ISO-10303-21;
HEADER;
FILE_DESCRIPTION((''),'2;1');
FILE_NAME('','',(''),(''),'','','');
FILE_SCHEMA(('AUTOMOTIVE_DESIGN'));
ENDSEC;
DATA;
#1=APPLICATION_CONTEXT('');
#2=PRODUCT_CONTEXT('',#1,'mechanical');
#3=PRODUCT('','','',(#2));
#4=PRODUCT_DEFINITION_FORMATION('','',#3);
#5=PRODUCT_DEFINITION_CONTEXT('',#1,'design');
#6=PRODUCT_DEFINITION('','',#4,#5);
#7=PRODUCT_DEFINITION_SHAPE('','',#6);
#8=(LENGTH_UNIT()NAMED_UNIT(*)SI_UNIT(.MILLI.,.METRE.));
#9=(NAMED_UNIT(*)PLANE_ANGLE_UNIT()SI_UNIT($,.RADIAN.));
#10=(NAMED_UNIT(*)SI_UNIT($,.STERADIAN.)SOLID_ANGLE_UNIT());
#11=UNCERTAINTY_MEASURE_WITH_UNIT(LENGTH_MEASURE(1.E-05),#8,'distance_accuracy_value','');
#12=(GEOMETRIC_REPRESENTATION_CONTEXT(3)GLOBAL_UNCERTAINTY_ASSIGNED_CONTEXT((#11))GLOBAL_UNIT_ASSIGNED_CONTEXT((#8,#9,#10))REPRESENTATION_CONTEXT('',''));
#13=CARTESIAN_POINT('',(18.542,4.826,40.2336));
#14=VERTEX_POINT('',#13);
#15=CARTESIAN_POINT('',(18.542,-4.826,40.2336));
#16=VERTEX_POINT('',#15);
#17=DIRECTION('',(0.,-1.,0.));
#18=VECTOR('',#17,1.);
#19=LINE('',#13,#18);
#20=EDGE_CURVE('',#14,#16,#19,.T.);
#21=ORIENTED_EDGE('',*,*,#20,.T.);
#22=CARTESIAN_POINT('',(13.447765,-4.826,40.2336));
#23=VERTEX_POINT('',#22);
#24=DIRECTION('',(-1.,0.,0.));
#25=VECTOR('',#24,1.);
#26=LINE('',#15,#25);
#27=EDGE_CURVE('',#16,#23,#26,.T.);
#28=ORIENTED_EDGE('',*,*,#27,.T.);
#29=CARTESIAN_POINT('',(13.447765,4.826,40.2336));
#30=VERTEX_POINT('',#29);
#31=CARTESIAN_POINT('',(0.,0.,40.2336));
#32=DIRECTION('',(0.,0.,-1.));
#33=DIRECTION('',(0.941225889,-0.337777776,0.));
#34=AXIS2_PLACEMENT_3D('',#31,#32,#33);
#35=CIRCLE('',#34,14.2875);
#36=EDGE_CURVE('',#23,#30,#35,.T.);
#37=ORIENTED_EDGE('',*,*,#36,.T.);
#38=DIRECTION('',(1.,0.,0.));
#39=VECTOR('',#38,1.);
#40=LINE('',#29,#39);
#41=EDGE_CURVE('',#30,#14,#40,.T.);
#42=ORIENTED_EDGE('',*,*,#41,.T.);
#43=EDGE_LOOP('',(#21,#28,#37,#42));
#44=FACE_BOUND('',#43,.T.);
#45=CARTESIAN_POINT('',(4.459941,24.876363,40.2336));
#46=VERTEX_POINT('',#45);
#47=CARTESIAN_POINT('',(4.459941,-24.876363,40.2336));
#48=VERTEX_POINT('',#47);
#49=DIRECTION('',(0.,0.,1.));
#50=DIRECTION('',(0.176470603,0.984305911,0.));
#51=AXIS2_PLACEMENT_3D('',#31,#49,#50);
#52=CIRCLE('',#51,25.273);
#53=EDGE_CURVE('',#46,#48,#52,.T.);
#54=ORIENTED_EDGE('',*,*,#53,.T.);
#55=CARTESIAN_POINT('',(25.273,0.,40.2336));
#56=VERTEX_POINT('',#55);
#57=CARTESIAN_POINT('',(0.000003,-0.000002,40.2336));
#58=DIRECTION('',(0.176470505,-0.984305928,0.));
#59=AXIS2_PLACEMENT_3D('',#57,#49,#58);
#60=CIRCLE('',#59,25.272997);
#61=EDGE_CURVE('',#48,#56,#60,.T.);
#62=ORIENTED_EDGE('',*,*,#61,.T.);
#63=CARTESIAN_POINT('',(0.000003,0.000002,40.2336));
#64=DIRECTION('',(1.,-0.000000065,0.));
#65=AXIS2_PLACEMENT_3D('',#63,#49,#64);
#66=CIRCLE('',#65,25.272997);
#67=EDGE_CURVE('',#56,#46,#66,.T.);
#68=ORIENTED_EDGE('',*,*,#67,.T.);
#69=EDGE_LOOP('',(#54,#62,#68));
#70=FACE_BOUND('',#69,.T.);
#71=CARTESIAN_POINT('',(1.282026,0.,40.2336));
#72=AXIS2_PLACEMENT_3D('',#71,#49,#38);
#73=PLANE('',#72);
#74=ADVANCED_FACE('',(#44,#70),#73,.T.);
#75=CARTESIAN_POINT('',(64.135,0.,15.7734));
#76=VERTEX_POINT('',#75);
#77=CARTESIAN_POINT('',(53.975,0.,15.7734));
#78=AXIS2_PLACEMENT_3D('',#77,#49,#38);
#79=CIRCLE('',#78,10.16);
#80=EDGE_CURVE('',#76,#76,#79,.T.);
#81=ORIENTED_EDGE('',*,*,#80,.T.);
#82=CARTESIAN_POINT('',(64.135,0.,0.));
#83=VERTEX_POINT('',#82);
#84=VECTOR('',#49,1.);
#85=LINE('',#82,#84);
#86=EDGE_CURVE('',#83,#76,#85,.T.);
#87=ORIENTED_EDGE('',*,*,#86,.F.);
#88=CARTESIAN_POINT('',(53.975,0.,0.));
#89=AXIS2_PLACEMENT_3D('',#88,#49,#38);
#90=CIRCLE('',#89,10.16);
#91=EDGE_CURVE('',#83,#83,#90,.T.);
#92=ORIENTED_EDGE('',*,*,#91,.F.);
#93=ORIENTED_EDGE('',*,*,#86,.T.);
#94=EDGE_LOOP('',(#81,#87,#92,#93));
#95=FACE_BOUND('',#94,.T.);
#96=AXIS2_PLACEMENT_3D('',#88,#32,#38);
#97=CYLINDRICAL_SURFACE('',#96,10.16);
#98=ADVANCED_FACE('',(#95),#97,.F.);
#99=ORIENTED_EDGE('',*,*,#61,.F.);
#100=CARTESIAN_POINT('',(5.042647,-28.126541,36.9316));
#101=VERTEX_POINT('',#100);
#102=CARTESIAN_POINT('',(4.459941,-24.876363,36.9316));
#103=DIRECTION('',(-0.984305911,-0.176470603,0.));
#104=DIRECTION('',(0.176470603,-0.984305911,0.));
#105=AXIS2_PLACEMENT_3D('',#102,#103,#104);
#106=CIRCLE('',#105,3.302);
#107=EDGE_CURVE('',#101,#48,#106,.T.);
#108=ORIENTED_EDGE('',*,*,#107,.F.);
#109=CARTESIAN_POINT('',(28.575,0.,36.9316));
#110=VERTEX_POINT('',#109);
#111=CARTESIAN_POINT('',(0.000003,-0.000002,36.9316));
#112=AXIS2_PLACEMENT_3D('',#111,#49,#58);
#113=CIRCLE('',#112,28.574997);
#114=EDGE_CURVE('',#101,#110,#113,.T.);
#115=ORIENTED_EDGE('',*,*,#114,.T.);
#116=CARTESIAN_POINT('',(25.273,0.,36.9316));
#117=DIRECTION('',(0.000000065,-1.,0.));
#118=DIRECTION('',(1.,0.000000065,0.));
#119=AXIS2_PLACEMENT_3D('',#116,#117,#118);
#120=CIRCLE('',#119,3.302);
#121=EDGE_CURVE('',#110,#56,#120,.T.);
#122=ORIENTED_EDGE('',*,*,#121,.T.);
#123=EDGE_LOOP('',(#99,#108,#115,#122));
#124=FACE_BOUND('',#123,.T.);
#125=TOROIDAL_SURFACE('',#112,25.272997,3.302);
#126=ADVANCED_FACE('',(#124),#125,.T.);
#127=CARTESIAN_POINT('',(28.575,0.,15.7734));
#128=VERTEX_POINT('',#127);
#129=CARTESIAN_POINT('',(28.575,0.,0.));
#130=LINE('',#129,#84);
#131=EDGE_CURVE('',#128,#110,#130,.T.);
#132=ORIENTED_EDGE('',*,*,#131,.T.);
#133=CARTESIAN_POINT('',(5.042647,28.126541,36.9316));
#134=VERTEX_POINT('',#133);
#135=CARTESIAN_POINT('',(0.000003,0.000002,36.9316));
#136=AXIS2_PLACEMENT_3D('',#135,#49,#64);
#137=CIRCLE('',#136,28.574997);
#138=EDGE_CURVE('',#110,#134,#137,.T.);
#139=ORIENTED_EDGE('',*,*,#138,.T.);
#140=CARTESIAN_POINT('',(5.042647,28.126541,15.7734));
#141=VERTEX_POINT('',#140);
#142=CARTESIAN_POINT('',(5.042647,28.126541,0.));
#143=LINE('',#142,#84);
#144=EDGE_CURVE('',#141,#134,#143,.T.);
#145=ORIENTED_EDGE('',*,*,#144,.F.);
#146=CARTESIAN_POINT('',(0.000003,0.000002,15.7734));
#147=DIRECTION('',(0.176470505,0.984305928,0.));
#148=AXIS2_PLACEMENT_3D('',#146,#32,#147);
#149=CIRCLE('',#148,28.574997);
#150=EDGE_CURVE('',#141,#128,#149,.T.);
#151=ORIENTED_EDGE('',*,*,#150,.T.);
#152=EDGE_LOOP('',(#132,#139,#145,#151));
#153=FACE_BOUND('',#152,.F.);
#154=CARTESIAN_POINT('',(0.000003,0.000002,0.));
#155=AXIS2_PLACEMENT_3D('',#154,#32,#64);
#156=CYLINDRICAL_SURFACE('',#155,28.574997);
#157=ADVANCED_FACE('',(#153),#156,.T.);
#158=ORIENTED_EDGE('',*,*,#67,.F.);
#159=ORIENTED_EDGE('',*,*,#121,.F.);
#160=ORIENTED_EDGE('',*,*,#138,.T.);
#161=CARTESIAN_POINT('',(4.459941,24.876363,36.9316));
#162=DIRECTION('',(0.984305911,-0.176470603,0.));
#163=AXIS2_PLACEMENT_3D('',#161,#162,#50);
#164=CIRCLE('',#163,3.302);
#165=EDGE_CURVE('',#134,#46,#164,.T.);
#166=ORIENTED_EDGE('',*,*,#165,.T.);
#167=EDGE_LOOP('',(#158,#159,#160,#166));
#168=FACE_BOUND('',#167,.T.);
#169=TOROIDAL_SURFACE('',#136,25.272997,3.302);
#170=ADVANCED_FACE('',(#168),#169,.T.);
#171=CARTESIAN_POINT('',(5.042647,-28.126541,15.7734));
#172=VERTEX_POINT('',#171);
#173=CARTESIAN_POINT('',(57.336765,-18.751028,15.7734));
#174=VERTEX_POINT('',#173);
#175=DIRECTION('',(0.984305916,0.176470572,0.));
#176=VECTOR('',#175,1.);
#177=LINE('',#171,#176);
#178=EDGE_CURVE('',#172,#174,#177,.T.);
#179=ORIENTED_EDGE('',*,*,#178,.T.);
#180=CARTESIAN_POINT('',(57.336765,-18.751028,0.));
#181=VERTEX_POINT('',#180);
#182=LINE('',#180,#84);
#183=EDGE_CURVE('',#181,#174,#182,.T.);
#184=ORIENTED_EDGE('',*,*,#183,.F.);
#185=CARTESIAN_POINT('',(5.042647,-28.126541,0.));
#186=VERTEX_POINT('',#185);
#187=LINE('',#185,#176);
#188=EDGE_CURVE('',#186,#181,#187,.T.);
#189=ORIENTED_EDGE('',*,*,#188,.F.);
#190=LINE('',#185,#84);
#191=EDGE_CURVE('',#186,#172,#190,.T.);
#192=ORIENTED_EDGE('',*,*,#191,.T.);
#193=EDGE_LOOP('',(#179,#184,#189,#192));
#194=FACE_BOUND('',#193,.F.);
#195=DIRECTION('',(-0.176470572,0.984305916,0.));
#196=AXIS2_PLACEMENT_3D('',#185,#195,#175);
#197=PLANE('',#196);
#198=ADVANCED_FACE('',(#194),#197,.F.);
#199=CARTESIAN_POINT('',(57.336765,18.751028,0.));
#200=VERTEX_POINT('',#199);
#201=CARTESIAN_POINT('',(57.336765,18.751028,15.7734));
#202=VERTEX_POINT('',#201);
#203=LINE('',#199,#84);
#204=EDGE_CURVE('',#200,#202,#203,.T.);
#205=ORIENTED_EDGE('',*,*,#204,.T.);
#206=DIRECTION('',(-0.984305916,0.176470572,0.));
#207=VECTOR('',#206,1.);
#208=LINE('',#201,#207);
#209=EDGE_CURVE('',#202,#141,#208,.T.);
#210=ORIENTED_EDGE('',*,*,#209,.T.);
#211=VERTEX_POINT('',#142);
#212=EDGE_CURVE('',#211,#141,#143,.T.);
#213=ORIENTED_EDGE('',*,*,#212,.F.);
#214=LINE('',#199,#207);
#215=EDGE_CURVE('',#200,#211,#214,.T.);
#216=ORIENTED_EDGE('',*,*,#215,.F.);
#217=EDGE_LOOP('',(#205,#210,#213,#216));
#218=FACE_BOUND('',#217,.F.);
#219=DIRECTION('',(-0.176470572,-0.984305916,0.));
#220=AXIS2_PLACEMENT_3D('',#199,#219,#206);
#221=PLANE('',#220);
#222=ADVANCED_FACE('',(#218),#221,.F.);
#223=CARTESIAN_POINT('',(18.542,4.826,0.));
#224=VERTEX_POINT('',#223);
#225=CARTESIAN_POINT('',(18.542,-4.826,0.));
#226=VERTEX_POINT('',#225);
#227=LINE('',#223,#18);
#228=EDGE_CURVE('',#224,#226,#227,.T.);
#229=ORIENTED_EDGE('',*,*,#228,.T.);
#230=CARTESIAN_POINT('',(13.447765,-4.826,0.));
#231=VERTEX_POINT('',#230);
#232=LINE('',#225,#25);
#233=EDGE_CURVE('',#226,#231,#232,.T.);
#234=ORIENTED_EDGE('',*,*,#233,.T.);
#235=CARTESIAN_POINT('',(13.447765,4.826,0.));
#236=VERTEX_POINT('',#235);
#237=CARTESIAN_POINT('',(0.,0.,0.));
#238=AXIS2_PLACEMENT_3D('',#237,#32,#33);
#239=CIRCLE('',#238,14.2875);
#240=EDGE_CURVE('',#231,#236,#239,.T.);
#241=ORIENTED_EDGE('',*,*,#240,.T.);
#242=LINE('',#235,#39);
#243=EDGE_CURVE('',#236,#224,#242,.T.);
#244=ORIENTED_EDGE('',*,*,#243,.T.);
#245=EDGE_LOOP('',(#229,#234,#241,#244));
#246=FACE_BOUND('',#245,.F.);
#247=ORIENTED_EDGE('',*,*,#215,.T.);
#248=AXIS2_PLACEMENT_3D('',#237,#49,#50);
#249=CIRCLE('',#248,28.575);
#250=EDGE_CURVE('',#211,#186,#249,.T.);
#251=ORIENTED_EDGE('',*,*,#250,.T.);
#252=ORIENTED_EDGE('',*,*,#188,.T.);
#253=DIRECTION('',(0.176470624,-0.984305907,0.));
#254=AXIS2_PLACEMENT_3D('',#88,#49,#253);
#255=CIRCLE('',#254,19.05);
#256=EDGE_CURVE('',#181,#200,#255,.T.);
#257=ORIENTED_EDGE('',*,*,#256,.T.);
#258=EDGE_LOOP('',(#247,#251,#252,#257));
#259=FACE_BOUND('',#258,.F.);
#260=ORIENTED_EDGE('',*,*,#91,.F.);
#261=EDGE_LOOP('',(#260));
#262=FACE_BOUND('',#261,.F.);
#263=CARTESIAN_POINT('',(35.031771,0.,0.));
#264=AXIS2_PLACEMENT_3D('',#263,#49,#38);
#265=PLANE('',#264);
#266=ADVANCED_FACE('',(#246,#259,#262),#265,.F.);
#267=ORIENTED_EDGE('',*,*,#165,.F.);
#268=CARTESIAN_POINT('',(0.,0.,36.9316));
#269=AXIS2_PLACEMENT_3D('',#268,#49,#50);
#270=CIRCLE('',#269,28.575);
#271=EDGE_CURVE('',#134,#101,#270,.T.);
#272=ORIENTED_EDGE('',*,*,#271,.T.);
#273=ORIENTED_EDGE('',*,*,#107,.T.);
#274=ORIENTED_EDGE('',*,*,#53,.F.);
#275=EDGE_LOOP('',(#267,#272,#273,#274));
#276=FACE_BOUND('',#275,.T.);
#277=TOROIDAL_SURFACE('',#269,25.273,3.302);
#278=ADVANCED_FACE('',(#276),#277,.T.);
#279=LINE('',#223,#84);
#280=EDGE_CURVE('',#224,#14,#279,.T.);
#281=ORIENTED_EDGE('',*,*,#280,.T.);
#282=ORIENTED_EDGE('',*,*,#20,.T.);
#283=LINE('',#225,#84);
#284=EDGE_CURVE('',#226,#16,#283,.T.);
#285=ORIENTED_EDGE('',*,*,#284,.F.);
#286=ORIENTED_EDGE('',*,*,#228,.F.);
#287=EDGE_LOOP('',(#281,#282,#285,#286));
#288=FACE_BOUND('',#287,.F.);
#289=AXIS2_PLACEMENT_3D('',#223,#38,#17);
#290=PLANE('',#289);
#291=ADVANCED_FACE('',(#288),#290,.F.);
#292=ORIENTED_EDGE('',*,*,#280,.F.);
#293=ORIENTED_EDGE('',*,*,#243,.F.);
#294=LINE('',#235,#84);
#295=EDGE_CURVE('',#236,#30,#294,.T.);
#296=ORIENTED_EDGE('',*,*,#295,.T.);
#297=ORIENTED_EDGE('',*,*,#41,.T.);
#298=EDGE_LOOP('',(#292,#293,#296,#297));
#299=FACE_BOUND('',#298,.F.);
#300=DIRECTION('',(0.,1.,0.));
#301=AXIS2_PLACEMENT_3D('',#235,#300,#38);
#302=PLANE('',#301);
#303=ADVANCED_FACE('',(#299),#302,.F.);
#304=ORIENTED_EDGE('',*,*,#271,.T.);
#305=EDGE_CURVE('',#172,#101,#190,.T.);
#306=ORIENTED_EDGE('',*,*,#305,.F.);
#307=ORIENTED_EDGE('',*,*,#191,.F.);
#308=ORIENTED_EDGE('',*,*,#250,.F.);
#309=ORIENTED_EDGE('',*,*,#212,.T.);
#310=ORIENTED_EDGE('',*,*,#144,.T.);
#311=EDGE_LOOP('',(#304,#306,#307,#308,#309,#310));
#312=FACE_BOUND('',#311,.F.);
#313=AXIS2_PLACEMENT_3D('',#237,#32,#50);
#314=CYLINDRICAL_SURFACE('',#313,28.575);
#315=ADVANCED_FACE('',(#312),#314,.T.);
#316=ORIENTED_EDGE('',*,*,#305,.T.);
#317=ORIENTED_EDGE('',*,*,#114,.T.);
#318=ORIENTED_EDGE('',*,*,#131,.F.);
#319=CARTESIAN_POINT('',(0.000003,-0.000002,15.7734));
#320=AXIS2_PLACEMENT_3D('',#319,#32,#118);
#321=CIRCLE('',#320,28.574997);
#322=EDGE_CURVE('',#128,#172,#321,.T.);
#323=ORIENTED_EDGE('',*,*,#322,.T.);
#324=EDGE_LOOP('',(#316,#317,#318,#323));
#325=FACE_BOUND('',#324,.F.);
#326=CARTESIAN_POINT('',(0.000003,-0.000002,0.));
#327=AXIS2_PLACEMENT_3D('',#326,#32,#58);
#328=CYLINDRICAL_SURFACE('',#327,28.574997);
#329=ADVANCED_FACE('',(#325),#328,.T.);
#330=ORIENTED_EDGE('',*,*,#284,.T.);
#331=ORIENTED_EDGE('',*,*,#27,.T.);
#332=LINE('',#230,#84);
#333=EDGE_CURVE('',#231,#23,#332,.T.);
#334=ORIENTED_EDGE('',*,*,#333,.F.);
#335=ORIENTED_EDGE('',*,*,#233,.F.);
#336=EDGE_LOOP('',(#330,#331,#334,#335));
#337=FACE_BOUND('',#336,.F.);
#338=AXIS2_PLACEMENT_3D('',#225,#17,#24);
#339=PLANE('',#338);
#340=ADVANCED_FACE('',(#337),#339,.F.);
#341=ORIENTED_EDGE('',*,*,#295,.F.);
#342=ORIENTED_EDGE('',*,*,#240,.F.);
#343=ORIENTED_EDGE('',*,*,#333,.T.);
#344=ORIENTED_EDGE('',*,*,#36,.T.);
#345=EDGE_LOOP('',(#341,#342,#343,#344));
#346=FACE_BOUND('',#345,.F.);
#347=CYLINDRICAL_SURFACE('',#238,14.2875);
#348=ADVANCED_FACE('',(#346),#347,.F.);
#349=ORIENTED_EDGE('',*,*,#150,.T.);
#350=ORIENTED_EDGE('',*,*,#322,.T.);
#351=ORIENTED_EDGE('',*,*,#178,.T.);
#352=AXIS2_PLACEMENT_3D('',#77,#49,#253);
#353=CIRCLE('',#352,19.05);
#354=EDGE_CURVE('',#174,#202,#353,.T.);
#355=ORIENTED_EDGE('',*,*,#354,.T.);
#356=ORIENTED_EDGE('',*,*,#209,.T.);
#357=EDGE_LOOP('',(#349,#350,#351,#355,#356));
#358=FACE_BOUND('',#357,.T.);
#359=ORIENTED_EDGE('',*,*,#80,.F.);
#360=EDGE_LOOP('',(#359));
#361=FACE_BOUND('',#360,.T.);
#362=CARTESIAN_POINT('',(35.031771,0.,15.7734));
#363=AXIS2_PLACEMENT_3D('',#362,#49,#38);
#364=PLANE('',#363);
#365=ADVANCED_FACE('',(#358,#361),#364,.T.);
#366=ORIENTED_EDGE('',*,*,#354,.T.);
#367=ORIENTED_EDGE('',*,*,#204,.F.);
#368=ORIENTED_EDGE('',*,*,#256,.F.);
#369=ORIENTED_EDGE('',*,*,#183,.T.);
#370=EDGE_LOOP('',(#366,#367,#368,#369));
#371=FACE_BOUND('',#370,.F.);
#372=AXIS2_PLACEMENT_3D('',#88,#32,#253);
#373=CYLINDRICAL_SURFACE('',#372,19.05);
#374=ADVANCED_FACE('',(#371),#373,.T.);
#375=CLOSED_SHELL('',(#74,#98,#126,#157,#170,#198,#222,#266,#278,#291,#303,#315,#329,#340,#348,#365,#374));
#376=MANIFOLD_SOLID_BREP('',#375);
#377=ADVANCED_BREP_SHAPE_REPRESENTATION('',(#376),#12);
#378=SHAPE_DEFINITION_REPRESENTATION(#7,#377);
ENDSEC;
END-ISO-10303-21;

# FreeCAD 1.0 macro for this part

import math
import FreeCAD as App
import Part
import Sketcher
Q = App.Units.Quantity


def edges_at(feature, points):
    """Names of the edges that pass closest to the given points."""
    edges = feature.Shape.Edges
    near = lambda p: min(range(len(edges)), key=lambda i: edges[i].distToShape(Part.Vertex(*p))[0])
    return sorted({f"Edge{near(p) + 1}" for p in points})

doc = App.newDocument("Part")
body = doc.addObject("PartDesign::Body", "Body")

sketch1 = doc.addObject("Sketcher::SketchObject", "Sketch")
body.addObject(sketch1)
sketch1.AttachmentSupport = (doc.XY_Plane, [""])
sketch1.MapMode = "FlatFace"
sketch1.addGeometry(Part.ArcOfCircle(Part.Circle(App.Vector(0, 0, 0), App.Vector(0, 0, 1), 29), math.radians(80), math.radians(280)), False)
sketch1.addGeometry(Part.ArcOfCircle(Part.Circle(App.Vector(0, 0, 0), App.Vector(0, 0, 1), 29), math.radians(-80), math.radians(0)), False)
sketch1.addGeometry(Part.ArcOfCircle(Part.Circle(App.Vector(0, 0, 0), App.Vector(0, 0, 1), 29), math.radians(0), math.radians(80)), False)
sketch1.addGeometry(Part.LineSegment(App.Vector(19, -5, 0), App.Vector(13, -5, 0)), False)
sketch1.addGeometry(Part.ArcOfCircle(Part.Circle(App.Vector(0, 0, 0), App.Vector(0, 0, 1), 14), math.radians(20), math.radians(340)), False)
sketch1.addGeometry(Part.LineSegment(App.Vector(13, 5, 0), App.Vector(19, 5, 0)), False)
sketch1.addGeometry(Part.LineSegment(App.Vector(19, 5, 0), App.Vector(19, -5, 0)), False)
sketch1.addConstraint(Sketcher.Constraint("Tangent", 0, 2, 1, 1))
sketch1.addConstraint(Sketcher.Constraint("Tangent", 1, 2, 2, 1))
sketch1.addConstraint(Sketcher.Constraint("Tangent", 2, 2, 0, 1))
sketch1.addConstraint(Sketcher.Constraint("Coincident", 3, 2, 4, 2))
sketch1.addConstraint(Sketcher.Constraint("Coincident", 4, 1, 5, 1))
sketch1.addConstraint(Sketcher.Constraint("Coincident", 5, 2, 6, 1))
sketch1.addConstraint(Sketcher.Constraint("Coincident", 6, 2, 3, 1))
sketch1.addConstraint(Sketcher.Constraint("Horizontal", 3))
sketch1.addConstraint(Sketcher.Constraint("Horizontal", 5))
sketch1.addConstraint(Sketcher.Constraint("Vertical", 6))
sketch1.addConstraint(Sketcher.Constraint("Coincident", 0, 3, -1, 1))
sketch1.addConstraint(Sketcher.Constraint("Coincident", 4, 3, -1, 1))
sketch1.addConstraint(Sketcher.Constraint("PointOnObject", 1, 2, -1))
sketch1.addConstraint(Sketcher.Constraint("Vertical", 0, 2, 2, 2))
sketch1.addConstraint(Sketcher.Constraint("Vertical", 3, 2, 4, 1))
sketch1.addConstraint(Sketcher.Constraint("Radius", 0, Q("1.125 in")))
sketch1.addConstraint(Sketcher.Constraint("Radius", 4, Q("0.5625 in")))
sketch1.addConstraint(Sketcher.Constraint("DistanceY", 6, 2, 6, 1, Q("0.38 in")))
sketch1.addConstraint(Sketcher.Constraint("DistanceX", -1, 1, 5, 2, Q("0.73 in")))
sketch1.addConstraint(Sketcher.Constraint("DistanceY", 0, 2, -1, 1, Q("28.126541 mm")))
pad1 = doc.addObject("PartDesign::Pad", "Pad")
body.addObject(pad1)
pad1.Profile = sketch1
pad1.Length = Q("1.584 in")

sketch2 = doc.addObject("Sketcher::SketchObject", "Sketch001")
body.addObject(sketch2)
sketch2.AttachmentSupport = (doc.XY_Plane, [""])
sketch2.MapMode = "FlatFace"
sketch2.addGeometry(Part.LineSegment(App.Vector(5, -28, 0), App.Vector(57, -19, 0)), False)
sketch2.addGeometry(Part.ArcOfCircle(Part.Circle(App.Vector(54, 0, 0), App.Vector(0, 0, 1), 19), math.radians(-80), math.radians(80)), False)
sketch2.addGeometry(Part.LineSegment(App.Vector(57, 19, 0), App.Vector(5, 28, 0)), False)
sketch2.addGeometry(Part.ArcOfCircle(Part.Circle(App.Vector(0, 0, 0), App.Vector(0, 0, 1), 29), math.radians(0), math.radians(80)), False)
sketch2.addGeometry(Part.ArcOfCircle(Part.Circle(App.Vector(0, 0, 0), App.Vector(0, 0, 1), 29), math.radians(-80), math.radians(0)), False)
sketch2.addGeometry(Part.Circle(App.Vector(54, 0, 0), App.Vector(0, 0, 1), 10), False)
sketch2.addConstraint(Sketcher.Constraint("Tangent", 0, 2, 1, 1))
sketch2.addConstraint(Sketcher.Constraint("Tangent", 1, 2, 2, 1))
sketch2.addConstraint(Sketcher.Constraint("Tangent", 2, 2, 3, 2))
sketch2.addConstraint(Sketcher.Constraint("Tangent", 3, 1, 4, 2))
sketch2.addConstraint(Sketcher.Constraint("Tangent", 4, 1, 0, 1))
sketch2.addConstraint(Sketcher.Constraint("Coincident", 3, 3, -1, 1))
sketch2.addConstraint(Sketcher.Constraint("Coincident", 5, 3, 1, 3))
sketch2.addConstraint(Sketcher.Constraint("Equal", 3, 4))
sketch2.addConstraint(Sketcher.Constraint("PointOnObject", 1, 3, -1))
sketch2.addConstraint(Sketcher.Constraint("PointOnObject", 3, 1, -1))
sketch2.addConstraint(Sketcher.Constraint("Diameter", 5, Q("0.8 in")))
sketch2.addConstraint(Sketcher.Constraint("Radius", 1, Q("0.75 in")))
sketch2.addConstraint(Sketcher.Constraint("Radius", 3, Q("1.1249999 in")))
sketch2.addConstraint(Sketcher.Constraint("DistanceX", 3, 1, 1, 3, Q("1 in")))
pad2 = doc.addObject("PartDesign::Pad", "Pad001")
body.addObject(pad2)
pad2.Profile = sketch2
pad2.Length = Q("0.621 in")
doc.recompute()

fillet = doc.addObject("PartDesign::Fillet", "Fillet")
body.addObject(fillet)
fillet.Base = (pad2, edges_at(pad2, [(-28.575, 0, 40.234)]))
fillet.Radius = Q("0.13 in")

doc.recompute()
